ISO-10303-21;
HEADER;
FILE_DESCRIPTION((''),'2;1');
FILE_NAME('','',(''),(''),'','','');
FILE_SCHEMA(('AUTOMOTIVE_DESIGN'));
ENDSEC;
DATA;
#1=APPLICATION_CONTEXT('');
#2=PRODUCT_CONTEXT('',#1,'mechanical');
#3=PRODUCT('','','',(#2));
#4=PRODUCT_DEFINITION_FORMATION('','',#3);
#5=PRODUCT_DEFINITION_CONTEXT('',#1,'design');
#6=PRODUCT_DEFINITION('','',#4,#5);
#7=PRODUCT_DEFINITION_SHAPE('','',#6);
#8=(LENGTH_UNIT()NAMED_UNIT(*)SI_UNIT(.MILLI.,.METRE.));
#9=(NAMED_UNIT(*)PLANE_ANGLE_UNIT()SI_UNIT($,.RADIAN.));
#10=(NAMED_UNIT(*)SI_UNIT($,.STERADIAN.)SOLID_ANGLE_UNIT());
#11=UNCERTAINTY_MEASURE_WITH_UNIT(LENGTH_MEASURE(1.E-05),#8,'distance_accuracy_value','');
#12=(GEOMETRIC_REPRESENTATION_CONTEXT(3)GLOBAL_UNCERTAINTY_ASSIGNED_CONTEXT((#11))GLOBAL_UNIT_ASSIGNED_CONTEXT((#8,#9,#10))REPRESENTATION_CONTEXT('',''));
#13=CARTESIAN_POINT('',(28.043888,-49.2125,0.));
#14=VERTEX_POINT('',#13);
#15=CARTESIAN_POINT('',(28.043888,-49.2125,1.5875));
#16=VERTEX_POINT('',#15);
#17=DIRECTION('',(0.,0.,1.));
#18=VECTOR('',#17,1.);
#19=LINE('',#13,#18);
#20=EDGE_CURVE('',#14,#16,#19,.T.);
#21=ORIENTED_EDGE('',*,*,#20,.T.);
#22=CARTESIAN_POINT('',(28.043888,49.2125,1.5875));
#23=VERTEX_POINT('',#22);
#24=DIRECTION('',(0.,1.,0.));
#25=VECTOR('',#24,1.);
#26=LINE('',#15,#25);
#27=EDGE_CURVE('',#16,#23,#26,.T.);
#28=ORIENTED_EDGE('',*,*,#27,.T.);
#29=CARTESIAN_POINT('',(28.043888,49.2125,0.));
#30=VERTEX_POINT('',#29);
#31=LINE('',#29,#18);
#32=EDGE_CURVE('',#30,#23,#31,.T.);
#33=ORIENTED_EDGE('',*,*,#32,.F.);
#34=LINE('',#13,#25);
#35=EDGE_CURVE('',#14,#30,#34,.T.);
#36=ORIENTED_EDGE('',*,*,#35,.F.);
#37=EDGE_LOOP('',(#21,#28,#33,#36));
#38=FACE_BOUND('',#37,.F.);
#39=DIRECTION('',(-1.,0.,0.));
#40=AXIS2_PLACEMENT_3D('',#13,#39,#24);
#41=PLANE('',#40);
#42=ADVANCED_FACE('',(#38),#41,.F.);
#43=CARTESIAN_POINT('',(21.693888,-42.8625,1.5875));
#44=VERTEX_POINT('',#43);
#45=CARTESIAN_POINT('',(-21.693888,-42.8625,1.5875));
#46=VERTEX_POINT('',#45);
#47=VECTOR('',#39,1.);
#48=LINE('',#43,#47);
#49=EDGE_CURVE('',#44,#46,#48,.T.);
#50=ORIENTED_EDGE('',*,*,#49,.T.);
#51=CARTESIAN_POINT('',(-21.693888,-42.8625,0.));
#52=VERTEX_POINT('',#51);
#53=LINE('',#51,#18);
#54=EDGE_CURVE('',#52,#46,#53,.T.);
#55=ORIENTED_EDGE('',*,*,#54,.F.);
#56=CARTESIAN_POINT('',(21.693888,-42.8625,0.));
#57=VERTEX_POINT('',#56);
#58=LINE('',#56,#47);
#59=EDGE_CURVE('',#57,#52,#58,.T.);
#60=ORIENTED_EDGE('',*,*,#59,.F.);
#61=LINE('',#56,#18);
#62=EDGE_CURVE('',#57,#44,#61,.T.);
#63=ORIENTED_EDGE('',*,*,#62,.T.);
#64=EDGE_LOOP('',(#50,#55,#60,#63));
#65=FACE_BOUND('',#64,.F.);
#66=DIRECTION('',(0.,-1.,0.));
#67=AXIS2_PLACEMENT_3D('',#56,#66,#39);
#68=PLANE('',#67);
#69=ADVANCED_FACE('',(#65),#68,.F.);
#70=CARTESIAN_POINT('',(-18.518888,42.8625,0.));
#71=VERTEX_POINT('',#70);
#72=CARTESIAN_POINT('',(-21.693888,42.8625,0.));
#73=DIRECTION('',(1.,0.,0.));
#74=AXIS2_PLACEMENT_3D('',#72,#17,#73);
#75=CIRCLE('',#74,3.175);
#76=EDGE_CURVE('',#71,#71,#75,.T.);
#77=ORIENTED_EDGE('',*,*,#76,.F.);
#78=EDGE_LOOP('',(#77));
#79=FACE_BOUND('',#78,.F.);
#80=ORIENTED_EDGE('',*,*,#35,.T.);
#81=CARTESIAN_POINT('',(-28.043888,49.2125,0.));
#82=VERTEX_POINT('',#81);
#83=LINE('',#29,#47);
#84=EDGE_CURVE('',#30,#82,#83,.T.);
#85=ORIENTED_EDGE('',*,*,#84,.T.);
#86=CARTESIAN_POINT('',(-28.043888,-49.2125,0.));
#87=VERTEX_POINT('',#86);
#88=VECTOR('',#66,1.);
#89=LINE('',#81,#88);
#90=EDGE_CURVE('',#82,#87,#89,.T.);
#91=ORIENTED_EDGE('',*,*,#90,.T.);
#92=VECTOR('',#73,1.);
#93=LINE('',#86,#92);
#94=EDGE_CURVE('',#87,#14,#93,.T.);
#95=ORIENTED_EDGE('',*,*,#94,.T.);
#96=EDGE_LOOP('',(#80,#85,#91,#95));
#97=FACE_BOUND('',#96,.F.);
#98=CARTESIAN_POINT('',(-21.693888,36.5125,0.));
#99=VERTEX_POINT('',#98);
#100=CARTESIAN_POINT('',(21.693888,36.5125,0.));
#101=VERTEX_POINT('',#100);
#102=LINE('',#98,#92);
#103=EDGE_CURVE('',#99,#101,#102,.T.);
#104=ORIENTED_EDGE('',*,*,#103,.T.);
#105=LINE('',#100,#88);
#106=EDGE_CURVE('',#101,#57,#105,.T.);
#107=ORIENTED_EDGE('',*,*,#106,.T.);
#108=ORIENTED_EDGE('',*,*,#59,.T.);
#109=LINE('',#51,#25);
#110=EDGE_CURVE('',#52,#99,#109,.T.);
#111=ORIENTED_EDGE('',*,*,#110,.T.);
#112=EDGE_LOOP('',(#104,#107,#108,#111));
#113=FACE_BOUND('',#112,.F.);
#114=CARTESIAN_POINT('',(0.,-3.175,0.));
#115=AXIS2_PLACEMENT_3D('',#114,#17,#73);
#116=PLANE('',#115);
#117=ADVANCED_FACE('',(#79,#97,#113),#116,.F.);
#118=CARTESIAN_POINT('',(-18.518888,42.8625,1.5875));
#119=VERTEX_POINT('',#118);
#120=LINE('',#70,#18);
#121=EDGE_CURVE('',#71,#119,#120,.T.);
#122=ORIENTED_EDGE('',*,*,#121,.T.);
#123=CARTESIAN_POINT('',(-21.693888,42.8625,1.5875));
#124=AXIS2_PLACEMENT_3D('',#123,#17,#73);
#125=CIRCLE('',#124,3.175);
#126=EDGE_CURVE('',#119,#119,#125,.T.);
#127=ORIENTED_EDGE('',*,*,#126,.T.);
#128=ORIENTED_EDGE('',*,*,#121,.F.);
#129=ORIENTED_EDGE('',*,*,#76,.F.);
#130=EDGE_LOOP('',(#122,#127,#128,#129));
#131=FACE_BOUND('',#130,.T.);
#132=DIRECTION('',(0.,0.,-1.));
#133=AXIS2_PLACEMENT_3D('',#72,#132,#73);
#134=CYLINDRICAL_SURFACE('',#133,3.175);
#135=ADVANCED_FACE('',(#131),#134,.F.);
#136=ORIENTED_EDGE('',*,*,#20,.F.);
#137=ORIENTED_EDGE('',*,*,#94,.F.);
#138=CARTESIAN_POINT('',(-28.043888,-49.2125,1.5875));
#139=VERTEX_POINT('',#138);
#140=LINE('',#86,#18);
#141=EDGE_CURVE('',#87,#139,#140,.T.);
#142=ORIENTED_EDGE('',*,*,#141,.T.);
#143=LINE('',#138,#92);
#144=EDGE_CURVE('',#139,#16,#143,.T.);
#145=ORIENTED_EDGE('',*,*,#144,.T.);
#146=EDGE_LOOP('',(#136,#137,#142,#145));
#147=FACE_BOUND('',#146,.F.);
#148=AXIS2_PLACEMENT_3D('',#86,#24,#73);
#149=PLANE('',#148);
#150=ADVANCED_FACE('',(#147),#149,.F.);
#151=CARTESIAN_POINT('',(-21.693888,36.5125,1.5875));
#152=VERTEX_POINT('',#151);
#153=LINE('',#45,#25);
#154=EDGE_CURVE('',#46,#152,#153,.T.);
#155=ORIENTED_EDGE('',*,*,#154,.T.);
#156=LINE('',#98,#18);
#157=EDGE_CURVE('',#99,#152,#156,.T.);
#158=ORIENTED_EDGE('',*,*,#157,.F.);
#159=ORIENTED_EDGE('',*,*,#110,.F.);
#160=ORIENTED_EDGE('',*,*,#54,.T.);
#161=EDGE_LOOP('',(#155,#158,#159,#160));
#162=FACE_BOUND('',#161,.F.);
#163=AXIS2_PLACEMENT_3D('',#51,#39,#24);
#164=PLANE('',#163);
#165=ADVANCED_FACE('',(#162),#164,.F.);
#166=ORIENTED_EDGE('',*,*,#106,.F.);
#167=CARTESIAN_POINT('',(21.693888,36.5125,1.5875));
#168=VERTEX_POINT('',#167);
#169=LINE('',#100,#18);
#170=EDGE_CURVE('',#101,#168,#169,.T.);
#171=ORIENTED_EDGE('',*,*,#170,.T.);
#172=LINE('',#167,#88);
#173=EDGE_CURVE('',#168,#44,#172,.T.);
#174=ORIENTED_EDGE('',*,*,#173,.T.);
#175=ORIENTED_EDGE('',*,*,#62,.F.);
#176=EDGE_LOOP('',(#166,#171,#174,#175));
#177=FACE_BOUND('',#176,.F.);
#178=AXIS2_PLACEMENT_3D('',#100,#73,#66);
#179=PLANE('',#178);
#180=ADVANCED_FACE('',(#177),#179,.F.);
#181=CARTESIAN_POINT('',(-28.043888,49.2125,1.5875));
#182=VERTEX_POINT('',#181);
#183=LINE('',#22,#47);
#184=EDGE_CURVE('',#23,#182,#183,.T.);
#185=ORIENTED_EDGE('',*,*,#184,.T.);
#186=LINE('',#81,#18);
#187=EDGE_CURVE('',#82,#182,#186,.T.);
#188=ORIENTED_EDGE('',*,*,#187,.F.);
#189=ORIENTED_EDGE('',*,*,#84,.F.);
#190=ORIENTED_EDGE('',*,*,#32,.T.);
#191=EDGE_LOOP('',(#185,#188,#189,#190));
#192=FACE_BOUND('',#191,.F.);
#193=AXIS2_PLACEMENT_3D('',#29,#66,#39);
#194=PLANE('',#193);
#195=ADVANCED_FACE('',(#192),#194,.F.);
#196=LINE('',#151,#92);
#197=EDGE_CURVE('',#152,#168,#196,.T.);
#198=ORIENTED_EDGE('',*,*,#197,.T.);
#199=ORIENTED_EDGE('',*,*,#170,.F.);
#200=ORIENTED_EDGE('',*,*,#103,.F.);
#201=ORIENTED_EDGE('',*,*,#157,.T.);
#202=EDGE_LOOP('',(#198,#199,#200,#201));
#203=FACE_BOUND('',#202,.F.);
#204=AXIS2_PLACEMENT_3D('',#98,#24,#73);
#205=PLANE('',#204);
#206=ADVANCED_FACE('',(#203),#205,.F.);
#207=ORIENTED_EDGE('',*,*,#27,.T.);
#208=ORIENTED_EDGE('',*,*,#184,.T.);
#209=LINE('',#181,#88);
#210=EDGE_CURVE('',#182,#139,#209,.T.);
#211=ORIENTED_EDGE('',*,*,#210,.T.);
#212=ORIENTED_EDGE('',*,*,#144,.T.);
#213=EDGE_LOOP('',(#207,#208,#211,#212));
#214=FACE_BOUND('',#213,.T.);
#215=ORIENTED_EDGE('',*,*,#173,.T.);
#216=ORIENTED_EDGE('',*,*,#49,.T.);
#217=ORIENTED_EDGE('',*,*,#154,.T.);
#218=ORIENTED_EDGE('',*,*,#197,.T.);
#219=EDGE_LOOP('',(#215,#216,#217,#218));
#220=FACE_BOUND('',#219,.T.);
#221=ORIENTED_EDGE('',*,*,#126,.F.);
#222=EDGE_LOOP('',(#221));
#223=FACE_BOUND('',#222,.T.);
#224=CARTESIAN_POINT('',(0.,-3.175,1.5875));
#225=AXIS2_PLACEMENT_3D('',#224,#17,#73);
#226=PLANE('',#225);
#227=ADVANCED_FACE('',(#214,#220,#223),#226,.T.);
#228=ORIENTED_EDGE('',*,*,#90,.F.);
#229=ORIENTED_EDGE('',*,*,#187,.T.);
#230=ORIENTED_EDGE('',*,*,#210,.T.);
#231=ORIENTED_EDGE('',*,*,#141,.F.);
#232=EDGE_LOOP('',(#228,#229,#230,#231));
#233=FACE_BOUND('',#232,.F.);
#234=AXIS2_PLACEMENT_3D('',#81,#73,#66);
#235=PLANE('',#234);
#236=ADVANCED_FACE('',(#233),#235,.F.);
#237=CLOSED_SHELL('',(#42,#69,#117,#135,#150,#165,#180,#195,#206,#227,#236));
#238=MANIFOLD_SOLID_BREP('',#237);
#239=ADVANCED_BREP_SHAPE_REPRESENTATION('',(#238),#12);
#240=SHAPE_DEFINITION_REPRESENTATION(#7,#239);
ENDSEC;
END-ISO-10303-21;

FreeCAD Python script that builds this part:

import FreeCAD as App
import Part
import Sketcher
from FreeCAD import Vector
Q = App.Units.Quantity

doc = App.newDocument("Part")
body = doc.addObject("PartDesign::Body", "Body")

# Sketch on XY plane
sketch1 = doc.addObject("Sketcher::SketchObject", "Sketch")
body.addObject(sketch1)
sketch1.AttachmentSupport = (doc.XY_Plane, [""])
sketch1.MapMode = "FlatFace"
sketch1.addGeometry([
    Part.LineSegment(Vector(-28.043888, -49.2125, 0), Vector(28.043888, -49.2125, 0)),  # 0
    Part.LineSegment(Vector(28.043888, -49.2125, 0), Vector(28.043888, 49.2125, 0)),  # 1
    Part.LineSegment(Vector(28.043888, 49.2125, 0), Vector(-28.043888, 49.2125, 0)),  # 2
    Part.LineSegment(Vector(-28.043888, 49.2125, 0), Vector(-28.043888, -49.2125, 0)),  # 3
    Part.LineSegment(Vector(-21.693888, 36.5125, 0), Vector(21.693888, 36.5125, 0)),  # 4
    Part.LineSegment(Vector(21.693888, 36.5125, 0), Vector(21.693888, -42.8625, 0)),  # 5
    Part.LineSegment(Vector(21.693888, -42.8625, 0), Vector(-21.693888, -42.8625, 0)),  # 6
    Part.LineSegment(Vector(-21.693888, -42.8625, 0), Vector(-21.693888, 36.5125, 0)),  # 7
    Part.Circle(Vector(-21.693888, 42.8625, 0), Vector(0, 0, 1), 3.175),  # 8
], False)
sketch1.addConstraint([
    Sketcher.Constraint("Coincident", 0, 2, 1, 1),
    Sketcher.Constraint("Coincident", 1, 2, 2, 1),
    Sketcher.Constraint("Coincident", 2, 2, 3, 1),
    Sketcher.Constraint("Coincident", 3, 2, 0, 1),
    Sketcher.Constraint("Coincident", 4, 2, 5, 1),
    Sketcher.Constraint("Coincident", 5, 2, 6, 1),
    Sketcher.Constraint("Coincident", 6, 2, 7, 1),
    Sketcher.Constraint("Coincident", 7, 2, 4, 1),
    Sketcher.Constraint("Horizontal", 0),
    Sketcher.Constraint("Vertical", 1),
    Sketcher.Constraint("Horizontal", 2),
    Sketcher.Constraint("Vertical", 3),
    Sketcher.Constraint("Horizontal", 4),
    Sketcher.Constraint("Vertical", 5),
    Sketcher.Constraint("Horizontal", 6),
    Sketcher.Constraint("Vertical", 7),
    Sketcher.Constraint("Symmetric", 0, 2, 2, 2, -1, 1),
    Sketcher.Constraint("Vertical", 8, 3, 6, 2),
    Sketcher.Constraint("Diameter", 8, Q("0.25 in")),
    Sketcher.Constraint("DistanceY", 4, 2, 1, 2, Q("0.5 in")),
    Sketcher.Constraint("DistanceY", 1, 1, 1, 2, Q("3.875 in")),
    Sketcher.Constraint("DistanceY", 5, 2, 5, 1, Q("3.125 in")),
    Sketcher.Constraint("DistanceY", 8, 3, 1, 2, Q("0.25 in")),
    Sketcher.Constraint("DistanceX", 2, 2, 8, 3, Q("0.25 in")),
    Sketcher.Constraint("DistanceX", 4, 2, 1, 2, Q("0.25 in")),
    Sketcher.Constraint("DistanceX", 0, 1, 0, 2, Q("56.087776 mm")),
])
pad1 = doc.addObject("PartDesign::Pad", "Pad")
body.addObject(pad1)
pad1.Profile = sketch1
pad1.Length = Q("0.0625 in")

doc.recompute()
